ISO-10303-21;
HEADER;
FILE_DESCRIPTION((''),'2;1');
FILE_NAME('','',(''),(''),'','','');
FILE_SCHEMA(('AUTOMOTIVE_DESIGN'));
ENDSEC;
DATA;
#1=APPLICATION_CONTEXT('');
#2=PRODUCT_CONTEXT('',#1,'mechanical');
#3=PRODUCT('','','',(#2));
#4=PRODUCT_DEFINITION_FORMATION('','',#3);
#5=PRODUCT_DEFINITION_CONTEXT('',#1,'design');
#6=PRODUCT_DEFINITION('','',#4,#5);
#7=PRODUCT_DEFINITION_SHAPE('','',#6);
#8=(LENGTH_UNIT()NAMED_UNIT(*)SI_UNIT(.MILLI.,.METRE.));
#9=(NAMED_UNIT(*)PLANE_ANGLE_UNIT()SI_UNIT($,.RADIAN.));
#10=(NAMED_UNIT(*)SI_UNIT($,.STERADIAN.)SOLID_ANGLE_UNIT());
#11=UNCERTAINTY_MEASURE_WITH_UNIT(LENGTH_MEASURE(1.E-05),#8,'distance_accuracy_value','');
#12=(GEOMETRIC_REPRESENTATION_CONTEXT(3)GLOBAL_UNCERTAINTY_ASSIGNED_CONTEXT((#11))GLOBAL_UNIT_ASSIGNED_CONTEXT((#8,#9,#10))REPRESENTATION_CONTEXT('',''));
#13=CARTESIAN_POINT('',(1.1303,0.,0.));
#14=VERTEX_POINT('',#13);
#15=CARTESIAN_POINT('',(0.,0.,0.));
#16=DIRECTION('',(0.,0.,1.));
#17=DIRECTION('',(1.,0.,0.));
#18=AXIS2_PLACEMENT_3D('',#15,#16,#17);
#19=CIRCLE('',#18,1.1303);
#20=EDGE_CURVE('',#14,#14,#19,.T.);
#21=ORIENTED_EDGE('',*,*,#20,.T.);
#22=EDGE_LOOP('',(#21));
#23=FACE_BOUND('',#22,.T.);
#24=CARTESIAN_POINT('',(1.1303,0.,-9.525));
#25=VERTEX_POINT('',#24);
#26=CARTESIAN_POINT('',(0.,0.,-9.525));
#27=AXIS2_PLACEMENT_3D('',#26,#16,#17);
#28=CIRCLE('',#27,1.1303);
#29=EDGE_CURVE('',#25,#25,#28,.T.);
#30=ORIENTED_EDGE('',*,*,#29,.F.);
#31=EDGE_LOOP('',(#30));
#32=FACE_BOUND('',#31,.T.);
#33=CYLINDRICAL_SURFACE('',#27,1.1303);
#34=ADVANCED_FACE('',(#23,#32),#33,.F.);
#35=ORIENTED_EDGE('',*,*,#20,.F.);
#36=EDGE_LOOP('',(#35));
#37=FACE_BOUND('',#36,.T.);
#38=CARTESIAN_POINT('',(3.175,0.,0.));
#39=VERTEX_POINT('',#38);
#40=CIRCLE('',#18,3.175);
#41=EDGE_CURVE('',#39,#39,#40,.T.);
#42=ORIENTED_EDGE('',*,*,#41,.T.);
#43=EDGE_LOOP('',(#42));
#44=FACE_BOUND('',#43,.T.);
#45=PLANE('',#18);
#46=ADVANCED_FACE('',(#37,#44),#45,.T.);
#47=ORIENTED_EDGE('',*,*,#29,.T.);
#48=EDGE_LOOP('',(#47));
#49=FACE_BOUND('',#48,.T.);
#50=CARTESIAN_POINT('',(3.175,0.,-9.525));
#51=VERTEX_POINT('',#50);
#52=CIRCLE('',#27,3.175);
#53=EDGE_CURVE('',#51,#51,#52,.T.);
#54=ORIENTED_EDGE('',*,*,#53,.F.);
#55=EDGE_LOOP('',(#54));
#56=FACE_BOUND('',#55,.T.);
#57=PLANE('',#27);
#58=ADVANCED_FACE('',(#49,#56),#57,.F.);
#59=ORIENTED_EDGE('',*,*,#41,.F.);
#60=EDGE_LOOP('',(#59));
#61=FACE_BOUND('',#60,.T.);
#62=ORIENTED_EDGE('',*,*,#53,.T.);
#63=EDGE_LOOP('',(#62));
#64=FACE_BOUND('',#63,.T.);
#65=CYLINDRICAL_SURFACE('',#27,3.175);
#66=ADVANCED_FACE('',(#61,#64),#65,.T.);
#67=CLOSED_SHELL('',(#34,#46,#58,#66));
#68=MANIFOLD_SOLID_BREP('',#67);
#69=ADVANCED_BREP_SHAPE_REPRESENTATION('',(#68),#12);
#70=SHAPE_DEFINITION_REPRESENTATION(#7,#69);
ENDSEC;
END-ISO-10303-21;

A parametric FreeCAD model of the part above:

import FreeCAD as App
import Part
import Sketcher
from FreeCAD import Vector
Q = App.Units.Quantity

doc = App.newDocument("Part")
body = doc.addObject("PartDesign::Body", "Body")

# Sketch on XY plane
sketch1 = doc.addObject("Sketcher::SketchObject", "Sketch")
body.addObject(sketch1)
sketch1.AttachmentSupport = (doc.XY_Plane, [""])
sketch1.MapMode = "FlatFace"
sketch1.addGeometry([
    Part.Circle(Vector(0, 0, 0), Vector(0, 0, 1), 3.175),
    Part.Circle(Vector(0, 0, 0), Vector(0, 0, 1), 1.1303),
], False)
sketch1.addConstraint([
    Sketcher.Constraint("Coincident", 0, 3, -1, 1),
    Sketcher.Constraint("Coincident", 1, 3, -1, 1),
    Sketcher.Constraint("Diameter", 0, Q("0.25 in")),
    Sketcher.Constraint("Diameter", 1, Q("0.089 in")),
])
pad1 = doc.addObject("PartDesign::Pad", "Pad")
body.addObject(pad1)
pad1.Profile = sketch1
pad1.Length = Q("0.375 in")
pad1.Reversed = True

doc.recompute()
